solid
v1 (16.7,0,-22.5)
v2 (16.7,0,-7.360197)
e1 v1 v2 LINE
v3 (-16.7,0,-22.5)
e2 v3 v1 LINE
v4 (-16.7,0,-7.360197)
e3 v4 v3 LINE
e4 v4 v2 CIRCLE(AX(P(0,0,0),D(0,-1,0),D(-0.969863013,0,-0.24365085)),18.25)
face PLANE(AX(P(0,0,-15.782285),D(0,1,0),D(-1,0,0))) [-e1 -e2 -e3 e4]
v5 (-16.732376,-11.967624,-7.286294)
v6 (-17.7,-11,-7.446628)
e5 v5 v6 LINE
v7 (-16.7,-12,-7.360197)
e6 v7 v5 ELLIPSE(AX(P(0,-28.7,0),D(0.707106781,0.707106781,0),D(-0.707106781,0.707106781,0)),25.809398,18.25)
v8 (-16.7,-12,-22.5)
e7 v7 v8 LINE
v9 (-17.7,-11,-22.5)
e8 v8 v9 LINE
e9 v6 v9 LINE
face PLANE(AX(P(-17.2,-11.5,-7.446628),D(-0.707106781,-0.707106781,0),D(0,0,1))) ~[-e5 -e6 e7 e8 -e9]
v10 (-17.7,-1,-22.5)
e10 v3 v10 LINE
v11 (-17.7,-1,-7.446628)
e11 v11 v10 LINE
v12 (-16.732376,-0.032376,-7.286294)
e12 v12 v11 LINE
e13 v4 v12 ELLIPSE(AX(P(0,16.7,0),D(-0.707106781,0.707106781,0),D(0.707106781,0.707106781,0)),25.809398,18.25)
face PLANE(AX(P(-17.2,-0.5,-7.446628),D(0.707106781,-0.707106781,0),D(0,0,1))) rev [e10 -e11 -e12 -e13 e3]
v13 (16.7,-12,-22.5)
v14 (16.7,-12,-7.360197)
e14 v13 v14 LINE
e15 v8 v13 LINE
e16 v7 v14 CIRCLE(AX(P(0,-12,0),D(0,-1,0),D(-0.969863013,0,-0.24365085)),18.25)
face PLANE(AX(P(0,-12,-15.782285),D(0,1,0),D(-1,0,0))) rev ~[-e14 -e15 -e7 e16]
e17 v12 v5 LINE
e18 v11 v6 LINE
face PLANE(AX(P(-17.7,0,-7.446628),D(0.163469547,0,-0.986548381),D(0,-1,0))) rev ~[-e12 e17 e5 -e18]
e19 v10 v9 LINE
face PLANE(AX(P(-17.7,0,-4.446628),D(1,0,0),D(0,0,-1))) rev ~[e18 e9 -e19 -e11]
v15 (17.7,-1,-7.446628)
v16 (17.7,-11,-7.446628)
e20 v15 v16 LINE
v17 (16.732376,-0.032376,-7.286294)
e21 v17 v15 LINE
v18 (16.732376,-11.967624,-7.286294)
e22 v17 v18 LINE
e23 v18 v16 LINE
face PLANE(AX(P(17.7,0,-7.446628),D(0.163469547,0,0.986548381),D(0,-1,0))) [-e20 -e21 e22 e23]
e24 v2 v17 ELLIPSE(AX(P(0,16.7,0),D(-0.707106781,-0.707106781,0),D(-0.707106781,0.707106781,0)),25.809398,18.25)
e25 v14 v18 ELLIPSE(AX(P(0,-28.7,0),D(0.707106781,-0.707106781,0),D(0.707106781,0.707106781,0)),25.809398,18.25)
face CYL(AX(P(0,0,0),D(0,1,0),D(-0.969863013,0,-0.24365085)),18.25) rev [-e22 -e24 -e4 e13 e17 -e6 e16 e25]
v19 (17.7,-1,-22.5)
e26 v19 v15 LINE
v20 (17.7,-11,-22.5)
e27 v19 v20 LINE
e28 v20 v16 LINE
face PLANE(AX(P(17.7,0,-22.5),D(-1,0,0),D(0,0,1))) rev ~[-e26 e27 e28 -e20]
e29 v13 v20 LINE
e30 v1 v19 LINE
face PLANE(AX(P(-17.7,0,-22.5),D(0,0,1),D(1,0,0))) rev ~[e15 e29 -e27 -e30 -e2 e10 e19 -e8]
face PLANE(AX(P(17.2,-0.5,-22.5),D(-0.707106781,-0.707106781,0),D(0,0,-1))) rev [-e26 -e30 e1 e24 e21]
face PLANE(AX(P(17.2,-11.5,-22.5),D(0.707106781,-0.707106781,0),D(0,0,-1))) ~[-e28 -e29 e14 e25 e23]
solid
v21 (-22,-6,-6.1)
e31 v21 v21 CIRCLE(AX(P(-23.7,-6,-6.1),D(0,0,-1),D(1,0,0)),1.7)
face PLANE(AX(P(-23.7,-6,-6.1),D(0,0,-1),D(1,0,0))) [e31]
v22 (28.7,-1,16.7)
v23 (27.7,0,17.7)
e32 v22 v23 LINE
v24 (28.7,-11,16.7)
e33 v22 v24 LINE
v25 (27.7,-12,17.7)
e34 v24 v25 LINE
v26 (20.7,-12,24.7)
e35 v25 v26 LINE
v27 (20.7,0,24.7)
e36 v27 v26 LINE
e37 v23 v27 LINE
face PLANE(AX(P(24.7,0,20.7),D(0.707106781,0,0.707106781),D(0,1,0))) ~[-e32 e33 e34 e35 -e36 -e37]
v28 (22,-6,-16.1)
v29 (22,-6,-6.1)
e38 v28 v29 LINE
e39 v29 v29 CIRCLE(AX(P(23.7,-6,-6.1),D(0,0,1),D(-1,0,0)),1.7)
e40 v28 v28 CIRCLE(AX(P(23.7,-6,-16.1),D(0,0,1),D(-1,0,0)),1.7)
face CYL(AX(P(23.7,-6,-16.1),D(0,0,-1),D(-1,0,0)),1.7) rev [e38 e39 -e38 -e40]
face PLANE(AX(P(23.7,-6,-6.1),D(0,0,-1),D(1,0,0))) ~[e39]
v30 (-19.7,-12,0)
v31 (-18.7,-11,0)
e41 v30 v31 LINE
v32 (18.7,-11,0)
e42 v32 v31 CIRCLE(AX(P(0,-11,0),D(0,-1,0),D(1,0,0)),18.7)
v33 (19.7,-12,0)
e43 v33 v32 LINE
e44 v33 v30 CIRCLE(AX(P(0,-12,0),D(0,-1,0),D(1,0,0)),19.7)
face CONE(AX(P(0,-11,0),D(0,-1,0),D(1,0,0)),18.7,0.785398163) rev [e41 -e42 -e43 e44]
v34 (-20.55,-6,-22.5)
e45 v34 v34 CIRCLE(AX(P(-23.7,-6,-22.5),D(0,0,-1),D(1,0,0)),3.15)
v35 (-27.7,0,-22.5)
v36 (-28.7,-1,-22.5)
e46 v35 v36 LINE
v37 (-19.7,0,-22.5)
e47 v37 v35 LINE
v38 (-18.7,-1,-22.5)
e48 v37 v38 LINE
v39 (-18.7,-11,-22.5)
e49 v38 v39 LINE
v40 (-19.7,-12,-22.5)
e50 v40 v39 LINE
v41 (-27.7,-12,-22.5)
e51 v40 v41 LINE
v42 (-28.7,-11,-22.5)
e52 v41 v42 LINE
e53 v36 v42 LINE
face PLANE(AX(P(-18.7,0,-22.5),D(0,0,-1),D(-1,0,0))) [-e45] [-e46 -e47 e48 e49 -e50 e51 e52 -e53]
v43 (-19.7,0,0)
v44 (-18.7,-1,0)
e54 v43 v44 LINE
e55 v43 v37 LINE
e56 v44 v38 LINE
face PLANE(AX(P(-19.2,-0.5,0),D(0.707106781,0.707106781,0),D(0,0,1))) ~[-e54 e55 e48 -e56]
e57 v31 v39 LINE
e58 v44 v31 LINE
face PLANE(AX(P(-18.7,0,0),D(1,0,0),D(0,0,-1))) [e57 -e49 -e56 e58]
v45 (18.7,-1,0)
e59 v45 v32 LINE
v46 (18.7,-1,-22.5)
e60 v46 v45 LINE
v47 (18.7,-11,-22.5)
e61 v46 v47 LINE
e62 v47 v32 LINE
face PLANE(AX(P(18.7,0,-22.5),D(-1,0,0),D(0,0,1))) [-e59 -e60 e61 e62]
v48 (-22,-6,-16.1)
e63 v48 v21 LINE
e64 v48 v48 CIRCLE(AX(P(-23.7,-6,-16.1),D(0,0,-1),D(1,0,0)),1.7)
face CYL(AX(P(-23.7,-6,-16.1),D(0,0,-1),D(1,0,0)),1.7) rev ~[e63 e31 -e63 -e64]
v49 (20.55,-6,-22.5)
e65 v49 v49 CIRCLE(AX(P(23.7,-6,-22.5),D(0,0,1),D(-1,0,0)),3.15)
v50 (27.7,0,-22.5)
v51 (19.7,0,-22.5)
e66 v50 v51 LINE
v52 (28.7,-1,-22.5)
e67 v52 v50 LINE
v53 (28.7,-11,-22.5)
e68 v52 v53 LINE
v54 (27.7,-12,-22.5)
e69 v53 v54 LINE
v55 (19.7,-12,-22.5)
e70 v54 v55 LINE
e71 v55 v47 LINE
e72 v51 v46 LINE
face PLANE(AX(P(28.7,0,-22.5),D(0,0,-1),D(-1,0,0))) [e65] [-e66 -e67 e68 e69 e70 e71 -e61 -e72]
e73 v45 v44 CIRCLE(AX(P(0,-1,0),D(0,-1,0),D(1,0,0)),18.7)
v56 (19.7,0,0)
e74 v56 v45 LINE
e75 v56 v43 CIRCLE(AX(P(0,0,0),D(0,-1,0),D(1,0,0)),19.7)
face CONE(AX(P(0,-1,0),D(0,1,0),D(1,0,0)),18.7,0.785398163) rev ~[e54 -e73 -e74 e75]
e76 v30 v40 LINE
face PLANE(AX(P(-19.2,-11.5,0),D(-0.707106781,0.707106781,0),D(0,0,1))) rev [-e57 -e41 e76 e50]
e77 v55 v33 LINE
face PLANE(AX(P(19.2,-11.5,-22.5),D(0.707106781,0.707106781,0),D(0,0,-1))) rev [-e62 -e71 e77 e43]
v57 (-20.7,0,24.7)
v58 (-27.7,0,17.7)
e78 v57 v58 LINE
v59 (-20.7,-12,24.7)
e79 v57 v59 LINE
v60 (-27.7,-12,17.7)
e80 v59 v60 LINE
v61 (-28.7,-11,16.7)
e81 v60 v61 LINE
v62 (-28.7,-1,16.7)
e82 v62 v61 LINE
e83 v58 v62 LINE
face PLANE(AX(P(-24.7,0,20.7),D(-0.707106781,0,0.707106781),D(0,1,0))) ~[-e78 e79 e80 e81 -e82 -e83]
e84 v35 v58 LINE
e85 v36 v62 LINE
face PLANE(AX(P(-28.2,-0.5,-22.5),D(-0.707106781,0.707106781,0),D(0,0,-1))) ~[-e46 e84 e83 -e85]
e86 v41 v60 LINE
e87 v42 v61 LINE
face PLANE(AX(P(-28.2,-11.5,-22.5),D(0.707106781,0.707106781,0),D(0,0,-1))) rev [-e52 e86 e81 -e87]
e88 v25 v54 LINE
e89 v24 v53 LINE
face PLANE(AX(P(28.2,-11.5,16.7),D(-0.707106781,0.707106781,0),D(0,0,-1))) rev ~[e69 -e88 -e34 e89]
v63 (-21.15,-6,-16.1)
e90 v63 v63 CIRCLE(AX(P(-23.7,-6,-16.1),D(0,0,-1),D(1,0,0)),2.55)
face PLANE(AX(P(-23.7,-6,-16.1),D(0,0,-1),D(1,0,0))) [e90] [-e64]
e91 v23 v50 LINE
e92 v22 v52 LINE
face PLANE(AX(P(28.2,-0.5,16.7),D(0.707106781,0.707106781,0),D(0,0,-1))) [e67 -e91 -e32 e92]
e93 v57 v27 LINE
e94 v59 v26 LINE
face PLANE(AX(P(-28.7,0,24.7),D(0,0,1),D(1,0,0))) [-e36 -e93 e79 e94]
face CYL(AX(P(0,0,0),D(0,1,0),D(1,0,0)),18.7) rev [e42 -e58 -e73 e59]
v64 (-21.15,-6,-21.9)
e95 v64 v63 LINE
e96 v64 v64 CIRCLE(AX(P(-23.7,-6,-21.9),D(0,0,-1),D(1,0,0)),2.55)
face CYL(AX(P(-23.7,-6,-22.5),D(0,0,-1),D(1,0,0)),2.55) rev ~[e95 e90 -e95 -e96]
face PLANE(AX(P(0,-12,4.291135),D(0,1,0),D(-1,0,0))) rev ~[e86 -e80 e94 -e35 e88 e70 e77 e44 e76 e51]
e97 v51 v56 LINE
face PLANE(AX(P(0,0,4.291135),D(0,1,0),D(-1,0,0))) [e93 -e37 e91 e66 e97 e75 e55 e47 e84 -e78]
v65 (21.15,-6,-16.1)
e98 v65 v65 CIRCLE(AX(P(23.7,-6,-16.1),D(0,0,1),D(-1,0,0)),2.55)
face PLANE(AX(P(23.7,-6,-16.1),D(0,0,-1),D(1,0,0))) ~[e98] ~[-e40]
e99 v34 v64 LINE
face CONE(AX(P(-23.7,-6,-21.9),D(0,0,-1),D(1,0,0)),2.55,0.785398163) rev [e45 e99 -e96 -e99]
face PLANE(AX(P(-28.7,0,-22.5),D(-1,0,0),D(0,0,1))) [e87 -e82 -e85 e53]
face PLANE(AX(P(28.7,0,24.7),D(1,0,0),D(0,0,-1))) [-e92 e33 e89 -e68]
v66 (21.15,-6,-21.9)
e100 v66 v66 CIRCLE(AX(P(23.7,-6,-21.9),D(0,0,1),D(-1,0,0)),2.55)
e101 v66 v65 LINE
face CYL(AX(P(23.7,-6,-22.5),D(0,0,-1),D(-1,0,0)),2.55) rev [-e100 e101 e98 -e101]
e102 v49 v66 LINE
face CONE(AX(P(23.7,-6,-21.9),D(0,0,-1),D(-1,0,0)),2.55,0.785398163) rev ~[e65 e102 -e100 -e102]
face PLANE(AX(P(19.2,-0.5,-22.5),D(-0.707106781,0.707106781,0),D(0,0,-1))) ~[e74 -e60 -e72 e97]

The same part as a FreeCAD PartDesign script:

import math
import FreeCAD as App
import Part
import Sketcher


def edges_at(feature, points):
    """Names of the edges that pass closest to the given points."""
    edges = feature.Shape.Edges
    near = lambda p: min(range(len(edges)), key=lambda i: edges[i].distToShape(Part.Vertex(*p))[0])
    return sorted({f"Edge{near(p) + 1}" for p in points})

doc = App.newDocument("Part")
body = doc.addObject("PartDesign::Body", "Body")

sketch1 = body.newObject("Sketcher::SketchObject", "Sketch")
sketch1.AttachmentSupport = (doc.getObject("XZ_Plane"), [""])
sketch1.MapMode = "FlatFace"
sketch1.addGeometry([
    Part.ArcOfCircle(Part.Circle(App.Vector(0, 0, 0), App.Vector(0, 0, 1), 19), math.radians(0), math.radians(180)),
    Part.LineSegment(App.Vector(19, 0, 0), App.Vector(19, -22, 0)),
    Part.LineSegment(App.Vector(19, -22, 0), App.Vector(29, -22, 0)),
    Part.LineSegment(App.Vector(29, -22, 0), App.Vector(29, 25, 0)),
    Part.LineSegment(App.Vector(29, 25, 0), App.Vector(-29, 25, 0)),
    Part.LineSegment(App.Vector(-29, 25, 0), App.Vector(-29, -22, 0)),
    Part.LineSegment(App.Vector(-29, -22, 0), App.Vector(-19, -22, 0)),
    Part.LineSegment(App.Vector(-19, -22, 0), App.Vector(-19, 0, 0)),
], False)
sketch1.addConstraint([
    Sketcher.Constraint("Tangent", 0, 1, 1, 1),
    Sketcher.Constraint("Coincident", 1, 2, 2, 1),
    Sketcher.Constraint("Coincident", 2, 2, 3, 1),
    Sketcher.Constraint("Coincident", 3, 2, 4, 1),
    Sketcher.Constraint("Coincident", 4, 2, 5, 1),
    Sketcher.Constraint("Coincident", 5, 2, 6, 1),
    Sketcher.Constraint("Coincident", 6, 2, 7, 1),
    Sketcher.Constraint("Tangent", 7, 2, 0, 2),
    Sketcher.Constraint("Vertical", 1),
    Sketcher.Constraint("Horizontal", 2),
    Sketcher.Constraint("Vertical", 3),
    Sketcher.Constraint("Horizontal", 4),
    Sketcher.Constraint("Vertical", 5),
    Sketcher.Constraint("Horizontal", 6),
    Sketcher.Constraint("Vertical", 7),
    Sketcher.Constraint("Coincident", 0, 3, -1, 1),
    Sketcher.Constraint("Symmetric", 2, 2, 5, 2, -2),
    Sketcher.Constraint("Radius", 0, 18.7),
    Sketcher.Constraint("DistanceX", 2, 1, 2, 2, 10.0),
    Sketcher.Constraint("DistanceY", 1, 2, 1, 1, 22.5),
    Sketcher.Constraint("DistanceY", 3, 1, 3, 2, 47.2),
])
pad1 = body.newObject("PartDesign::Pad", "Pad")
pad1.Profile = sketch1
pad1.Length = 12

sketch2 = body.newObject("Sketcher::SketchObject", "Sketch001")
sketch2.AttachmentSupport = (doc.getObject("XY_Plane"), [""])
sketch2.MapMode = "FlatFace"
sketch2.AttachmentOffset = App.Placement(App.Vector(0, 0, -22.5), App.Rotation())
sketch2.addGeometry(Part.Circle(App.Vector(-23.7, -6, 0), App.Vector(0, 0, 1), 2.5), False)
sketch2.addConstraint([
    Sketcher.Constraint("Diameter", 0, 5.1),
    Sketcher.Constraint("DistanceY", 0, 3, -1, 1, 6.0),
    Sketcher.Constraint("DistanceX", 0, 3, -1, 1, 23.7),
])
pocket1 = body.newObject("PartDesign::Pocket", "Pocket")
pocket1.Profile = sketch2
pocket1.Length = 6.4
pocket1.Reversed = True
doc.recompute()

mirrored = body.newObject("PartDesign::Mirrored", "Mirrored")
mirrored.Originals = [pocket1]
mirrored.MirrorPlane = (doc.getObject("YZ_Plane"), [""])
body.Tip = mirrored

sketch3 = body.newObject("Sketcher::SketchObject", "Sketch002")
sketch3.AttachmentSupport = (doc.getObject("XY_Plane"), [""])
sketch3.MapMode = "FlatFace"
sketch3.AttachmentOffset = App.Placement(App.Vector(0, 0, -16.1), App.Rotation())
sketch3.addGeometry(Part.Circle(App.Vector(-23.7, -6, 0), App.Vector(0, 0, 1), 1.7), False)
sketch3.addConstraint([
    Sketcher.Constraint("Diameter", 0, 3.4),
    Sketcher.Constraint("DistanceY", 0, 3, -1, 1, 6.0),
    Sketcher.Constraint("DistanceX", 0, 3, -1, 1, 23.7),
])
pocket2 = body.newObject("PartDesign::Pocket", "Pocket001")
pocket2.Profile = sketch3
pocket2.Length = 10
pocket2.Reversed = True
doc.recompute()

mirrored2 = body.newObject("PartDesign::Mirrored", "Mirrored001")
mirrored2.Originals = [pocket2]
mirrored2.MirrorPlane = (doc.getObject("YZ_Plane"), [""])
body.Tip = mirrored2
doc.recompute()

chamfer = body.newObject("PartDesign::Chamfer", "Chamfer")
chamfer.Base = (mirrored2, edges_at(mirrored2, [(-26.25, -6, -22.5), (26.25, -6, -22.5)]))
chamfer.Size = 0.6
doc.recompute()

chamfer2 = body.newObject("PartDesign::Chamfer", "Chamfer001")
chamfer2.Base = (chamfer, edges_at(chamfer, [(-28.7, -6, 24.7), (28.7, -6, 24.7)]))
chamfer2.Size = 8
doc.recompute()

chamfer3 = body.newObject("PartDesign::Chamfer", "Chamfer002")
chamfer3.Base = (chamfer2, edges_at(chamfer2, [
    (-28.7, 0, -2.9),
    (-28.7, -12, -2.9),
    (28.7, 0, -2.9),
    (28.7, -12, -2.9),
]))
chamfer3.Size = 1
doc.recompute()

chamfer4 = body.newObject("PartDesign::Chamfer", "Chamfer003")
chamfer4.Base = (chamfer3, edges_at(chamfer3, [
    (-18.7, 0, -11.25),
    (0, 0, 18.7),
    (18.7, 0, -11.25),
    (18.7, -12, -11.25),
    (0, -12, 18.7),
    (-18.7, -12, -11.25),
]))
chamfer4.Size = 1
body2 = doc.addObject("PartDesign::Body", "Body001")

sketch4 = body2.newObject("Sketcher::SketchObject", "Sketch003")
sketch4.AttachmentSupport = (doc.getObject("XZ_Plane001"), [""])
sketch4.MapMode = "FlatFace"
sketch4.addGeometry([
    Part.ArcOfCircle(Part.Circle(App.Vector(0, 0, 0), App.Vector(0, 0, 1), 18), math.radians(-166), math.radians(-14)),
    Part.LineSegment(App.Vector(-18, -4, 0), App.Vector(-18, -22, 0)),
    Part.LineSegment(App.Vector(-18, -22, 0), App.Vector(18, -22, 0)),
    Part.LineSegment(App.Vector(18, -22, 0), App.Vector(18, -4, 0)),
], False)
sketch4.addConstraint([
    Sketcher.Constraint("Coincident", 0, 1, 1, 1),
    Sketcher.Constraint("Coincident", 1, 2, 2, 1),
    Sketcher.Constraint("Coincident", 2, 2, 3, 1),
    Sketcher.Constraint("Coincident", 3, 2, 0, 2),
    Sketcher.Constraint("Vertical", 1),
    Sketcher.Constraint("Horizontal", 2),
    Sketcher.Constraint("Vertical", 3),
    Sketcher.Constraint("Coincident", 0, 3, -1, 1),
    Sketcher.Constraint("Horizontal", 0, 1, 3, 2),
    Sketcher.Constraint("Radius", 0, 18.25),
    Sketcher.Constraint("DistanceX", 2, 1, 2, 2, 35.4),
    Sketcher.Constraint("DistanceY", 1, 2, -1, 1, 22.5),
])
pad2 = body2.newObject("PartDesign::Pad", "Pad001")
pad2.Profile = sketch4
pad2.Length = 12
doc.recompute()

chamfer5 = body2.newObject("PartDesign::Chamfer", "Chamfer004")
chamfer5.Base = (pad2, edges_at(pad2, [(-17.7, -6, -4.447), (17.7, -6, -4.447)]))
chamfer5.Size = 3
doc.recompute()

chamfer6 = body2.newObject("PartDesign::Chamfer", "Chamfer005")
chamfer6.Base = (chamfer5, edges_at(chamfer5, [
    (-17.7, -12, -14.973),
    (-17.7, 0, -14.973),
    (17.7, -12, -14.973),
    (17.7, 0, -14.973),
]))
chamfer6.Size = 1

doc.recompute()
